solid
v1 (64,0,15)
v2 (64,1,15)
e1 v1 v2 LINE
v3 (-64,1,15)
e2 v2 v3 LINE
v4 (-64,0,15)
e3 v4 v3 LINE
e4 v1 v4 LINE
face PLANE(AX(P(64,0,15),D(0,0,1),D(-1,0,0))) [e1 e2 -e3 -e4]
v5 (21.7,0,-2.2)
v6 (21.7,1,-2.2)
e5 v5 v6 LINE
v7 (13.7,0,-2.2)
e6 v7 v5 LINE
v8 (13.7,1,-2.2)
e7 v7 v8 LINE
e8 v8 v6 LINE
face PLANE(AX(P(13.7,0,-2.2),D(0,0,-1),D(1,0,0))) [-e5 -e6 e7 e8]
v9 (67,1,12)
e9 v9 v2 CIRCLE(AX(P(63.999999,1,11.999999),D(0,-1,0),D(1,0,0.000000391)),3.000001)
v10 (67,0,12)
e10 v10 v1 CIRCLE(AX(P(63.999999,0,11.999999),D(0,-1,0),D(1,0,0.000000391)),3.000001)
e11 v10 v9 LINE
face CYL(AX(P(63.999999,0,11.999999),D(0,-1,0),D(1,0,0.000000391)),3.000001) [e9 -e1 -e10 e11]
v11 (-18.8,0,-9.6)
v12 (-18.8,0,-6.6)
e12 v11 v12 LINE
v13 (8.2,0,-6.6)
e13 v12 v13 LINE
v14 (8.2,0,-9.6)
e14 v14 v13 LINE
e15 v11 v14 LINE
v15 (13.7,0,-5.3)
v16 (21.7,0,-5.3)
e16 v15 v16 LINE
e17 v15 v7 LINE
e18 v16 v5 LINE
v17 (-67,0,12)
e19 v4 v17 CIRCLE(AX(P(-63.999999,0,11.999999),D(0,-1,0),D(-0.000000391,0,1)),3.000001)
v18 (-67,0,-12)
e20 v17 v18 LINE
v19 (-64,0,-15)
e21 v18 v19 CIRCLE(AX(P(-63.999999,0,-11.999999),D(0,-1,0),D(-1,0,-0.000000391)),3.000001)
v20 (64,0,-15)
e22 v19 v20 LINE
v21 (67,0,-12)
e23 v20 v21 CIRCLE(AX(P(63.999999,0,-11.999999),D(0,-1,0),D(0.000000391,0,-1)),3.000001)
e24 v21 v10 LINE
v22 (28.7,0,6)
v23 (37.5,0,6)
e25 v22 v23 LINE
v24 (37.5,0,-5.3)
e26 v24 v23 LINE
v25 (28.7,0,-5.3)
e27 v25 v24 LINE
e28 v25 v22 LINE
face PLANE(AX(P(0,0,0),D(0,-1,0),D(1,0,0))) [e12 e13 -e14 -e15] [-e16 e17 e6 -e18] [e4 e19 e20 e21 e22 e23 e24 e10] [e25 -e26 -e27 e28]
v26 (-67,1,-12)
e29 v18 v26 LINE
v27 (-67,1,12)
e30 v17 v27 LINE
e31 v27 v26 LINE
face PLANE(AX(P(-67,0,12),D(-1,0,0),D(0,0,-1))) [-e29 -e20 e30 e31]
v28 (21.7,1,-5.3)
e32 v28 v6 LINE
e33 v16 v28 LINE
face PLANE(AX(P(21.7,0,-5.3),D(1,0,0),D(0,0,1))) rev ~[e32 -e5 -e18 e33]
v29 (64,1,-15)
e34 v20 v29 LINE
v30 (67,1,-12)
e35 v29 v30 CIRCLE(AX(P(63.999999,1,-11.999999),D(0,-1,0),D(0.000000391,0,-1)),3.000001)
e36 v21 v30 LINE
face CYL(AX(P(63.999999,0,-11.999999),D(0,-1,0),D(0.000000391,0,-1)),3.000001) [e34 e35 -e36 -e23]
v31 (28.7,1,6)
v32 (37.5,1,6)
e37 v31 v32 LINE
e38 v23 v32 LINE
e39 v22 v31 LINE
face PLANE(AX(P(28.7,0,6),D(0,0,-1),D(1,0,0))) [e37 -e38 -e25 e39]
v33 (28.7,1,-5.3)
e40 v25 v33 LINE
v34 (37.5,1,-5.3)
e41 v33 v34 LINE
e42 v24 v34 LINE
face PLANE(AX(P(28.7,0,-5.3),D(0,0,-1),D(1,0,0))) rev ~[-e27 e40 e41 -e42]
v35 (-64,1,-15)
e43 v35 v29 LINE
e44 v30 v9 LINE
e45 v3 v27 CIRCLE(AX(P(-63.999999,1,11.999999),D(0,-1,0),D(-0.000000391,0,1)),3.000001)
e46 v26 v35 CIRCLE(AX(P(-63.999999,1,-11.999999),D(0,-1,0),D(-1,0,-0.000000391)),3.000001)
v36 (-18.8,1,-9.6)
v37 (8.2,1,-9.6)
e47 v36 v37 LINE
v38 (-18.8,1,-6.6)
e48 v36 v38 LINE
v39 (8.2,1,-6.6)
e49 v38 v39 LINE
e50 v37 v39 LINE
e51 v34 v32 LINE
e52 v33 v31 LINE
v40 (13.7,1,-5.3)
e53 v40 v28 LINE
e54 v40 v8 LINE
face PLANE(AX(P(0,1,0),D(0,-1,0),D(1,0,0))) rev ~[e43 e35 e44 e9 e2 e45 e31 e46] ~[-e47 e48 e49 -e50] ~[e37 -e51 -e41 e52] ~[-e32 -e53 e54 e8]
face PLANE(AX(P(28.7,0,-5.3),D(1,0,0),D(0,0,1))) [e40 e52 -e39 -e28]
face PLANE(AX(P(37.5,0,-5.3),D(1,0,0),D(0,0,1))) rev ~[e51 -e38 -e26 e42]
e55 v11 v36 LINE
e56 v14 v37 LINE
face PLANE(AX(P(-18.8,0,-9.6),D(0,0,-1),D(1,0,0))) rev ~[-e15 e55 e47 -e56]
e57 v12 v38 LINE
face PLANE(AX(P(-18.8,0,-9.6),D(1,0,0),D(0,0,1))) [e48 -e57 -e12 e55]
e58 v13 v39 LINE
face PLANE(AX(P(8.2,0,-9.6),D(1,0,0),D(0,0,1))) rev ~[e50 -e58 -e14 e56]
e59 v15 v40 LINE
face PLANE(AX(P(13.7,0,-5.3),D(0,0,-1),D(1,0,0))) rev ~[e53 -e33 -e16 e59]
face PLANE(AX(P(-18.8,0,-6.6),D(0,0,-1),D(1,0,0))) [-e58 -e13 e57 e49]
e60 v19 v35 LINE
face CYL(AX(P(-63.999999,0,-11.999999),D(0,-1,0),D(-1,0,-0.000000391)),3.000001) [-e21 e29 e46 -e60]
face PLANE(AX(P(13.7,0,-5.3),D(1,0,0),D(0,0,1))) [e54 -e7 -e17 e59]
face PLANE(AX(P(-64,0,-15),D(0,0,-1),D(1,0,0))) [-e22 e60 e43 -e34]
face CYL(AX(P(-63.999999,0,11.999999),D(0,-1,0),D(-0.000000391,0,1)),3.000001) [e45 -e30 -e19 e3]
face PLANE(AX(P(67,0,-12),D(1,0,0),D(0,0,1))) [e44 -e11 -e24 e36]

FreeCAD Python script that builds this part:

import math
import FreeCAD as App
import Part
import Sketcher
from FreeCAD import Vector


def add_polygon(sketch, points):
    """Adds a closed chain of lines whose ends are joined by coincident constraints."""
    first, n = sketch.GeometryCount, len(points)
    for a, b in zip(points, points[1:] + points[:1]):
        sketch.addGeometry(Part.LineSegment(App.Vector(*a, 0), App.Vector(*b, 0)), False)
    for i in range(n):
        sketch.addConstraint(Sketcher.Constraint("Coincident", first + i, 2, first + (i + 1) % n, 1))

doc = App.newDocument("Part")
body = doc.addObject("PartDesign::Body", "Body")

sketch1 = body.newObject("Sketcher::SketchObject", "Sketch")
sketch1.AttachmentSupport = (doc.getObject("XZ_Plane"), [""])
sketch1.MapMode = "FlatFace"
sketch1.addGeometry(Part.LineSegment(Vector(64, 15, 0), Vector(-64, 15, 0)), False)
sketch1.addGeometry(Part.ArcOfCircle(Part.Circle(Vector(-64, 12, 0), Vector(0, 0, 1), 3), math.radians(90), math.radians(180)), False)
sketch1.addGeometry(Part.LineSegment(Vector(-67, 12, 0), Vector(-67, -12, 0)), False)
sketch1.addGeometry(Part.ArcOfCircle(Part.Circle(Vector(-64, -12, 0), Vector(0, 0, 1), 3), math.radians(-180), math.radians(-90)), False)
sketch1.addGeometry(Part.LineSegment(Vector(-64, -15, 0), Vector(64, -15, 0)), False)
sketch1.addGeometry(Part.ArcOfCircle(Part.Circle(Vector(64, -12, 0), Vector(0, 0, 1), 3), math.radians(-90), math.radians(0)), False)
sketch1.addGeometry(Part.LineSegment(Vector(67, -12, 0), Vector(67, 12, 0)), False)
sketch1.addGeometry(Part.ArcOfCircle(Part.Circle(Vector(64, 12, 0), Vector(0, 0, 1), 3), math.radians(0), math.radians(90)), False)
add_polygon(sketch1, [(8.2, -9.6), (-18.8, -9.6), (-18.8, -6.6), (8.2, -6.6)])
add_polygon(sketch1, [(21.7, -5.3), (13.7, -5.3), (13.7, -2.2), (21.7, -2.2)])
add_polygon(sketch1, [(37.5, -5.3), (28.7, -5.3), (28.7, 6), (37.5, 6)])
sketch1.addConstraint([
    Sketcher.Constraint("Tangent", 0, 2, 1, 1),
    Sketcher.Constraint("Tangent", 1, 2, 2, 1),
    Sketcher.Constraint("Tangent", 2, 2, 3, 1),
    Sketcher.Constraint("Tangent", 3, 2, 4, 1),
    Sketcher.Constraint("Tangent", 4, 2, 5, 1),
    Sketcher.Constraint("Tangent", 5, 2, 6, 1),
    Sketcher.Constraint("Tangent", 6, 2, 7, 1),
    Sketcher.Constraint("Tangent", 7, 2, 0, 1),
    Sketcher.Constraint("Horizontal", 0),
    Sketcher.Constraint("Vertical", 2),
    Sketcher.Constraint("Horizontal", 4),
    Sketcher.Constraint("Vertical", 6),
    Sketcher.Constraint("Horizontal", 8),
    Sketcher.Constraint("Vertical", 9),
    Sketcher.Constraint("Horizontal", 10),
    Sketcher.Constraint("Vertical", 11),
    Sketcher.Constraint("Horizontal", 12),
    Sketcher.Constraint("Vertical", 13),
    Sketcher.Constraint("Horizontal", 14),
    Sketcher.Constraint("Vertical", 15),
    Sketcher.Constraint("Horizontal", 16),
    Sketcher.Constraint("Vertical", 17),
    Sketcher.Constraint("Horizontal", 18),
    Sketcher.Constraint("Vertical", 19),
    Sketcher.Constraint("Equal", 1, 3),
    Sketcher.Constraint("Equal", 3, 5),
    Sketcher.Constraint("Equal", 5, 7),
    Sketcher.Constraint("Symmetric", 1, 3, 5, 3, -1, 1),
    Sketcher.Constraint("Horizontal", 15, 2, 16, 2),
    Sketcher.Constraint("Radius", 1, 3.000001),
    Sketcher.Constraint("DistanceX", 0, 2, 0, 1, 128.0),
    Sketcher.Constraint("DistanceX", 8, 2, 8, 1, 27.0),
    Sketcher.Constraint("DistanceX", 12, 2, 12, 1, 8.0),
    Sketcher.Constraint("DistanceY", 2, 2, 2, 1, 24.0),
    Sketcher.Constraint("DistanceY", 9, 1, 9, 2, 3.0),
    Sketcher.Constraint("DistanceX", 16, 2, 16, 1, 8.8),
    Sketcher.Constraint("DistanceY", 13, 1, 13, 2, 3.1),
    Sketcher.Constraint("DistanceY", 17, 1, 17, 2, 11.3),
    Sketcher.Constraint("DistanceY", -1, 1, 17, 2, 6.0),
    Sketcher.Constraint("DistanceX", 15, 2, 16, 2, 7.0),
    Sketcher.Constraint("DistanceX", 8, 2, -1, 1, 18.8),
    Sketcher.Constraint("DistanceY", 8, 2, -1, 1, 9.6),
    Sketcher.Constraint("DistanceX", -1, 1, 12, 2, 13.7),
])
pad1 = body.newObject("PartDesign::Pad", "Pad")
pad1.Profile = sketch1
pad1.Length = 1
pad1.Reversed = True

doc.recompute()
